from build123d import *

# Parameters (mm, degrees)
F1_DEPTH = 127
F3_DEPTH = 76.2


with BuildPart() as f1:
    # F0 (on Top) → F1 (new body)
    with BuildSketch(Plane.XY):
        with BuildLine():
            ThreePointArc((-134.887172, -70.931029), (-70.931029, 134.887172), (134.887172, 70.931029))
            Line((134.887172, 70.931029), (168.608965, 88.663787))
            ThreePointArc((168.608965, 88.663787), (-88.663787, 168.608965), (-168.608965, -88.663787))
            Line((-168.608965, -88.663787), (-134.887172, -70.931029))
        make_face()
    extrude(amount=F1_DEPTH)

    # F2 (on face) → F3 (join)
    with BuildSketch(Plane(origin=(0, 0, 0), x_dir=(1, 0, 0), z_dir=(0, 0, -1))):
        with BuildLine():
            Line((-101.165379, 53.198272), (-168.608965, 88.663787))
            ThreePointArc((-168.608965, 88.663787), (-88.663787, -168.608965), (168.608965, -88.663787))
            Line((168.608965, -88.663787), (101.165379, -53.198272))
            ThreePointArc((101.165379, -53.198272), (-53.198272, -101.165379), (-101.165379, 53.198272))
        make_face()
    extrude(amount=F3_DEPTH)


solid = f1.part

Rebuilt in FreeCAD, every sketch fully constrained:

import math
import FreeCAD as App
import Part
import Sketcher
Q = App.Units.Quantity

doc = App.newDocument("Part")
body = doc.addObject("PartDesign::Body", "Body")

sketch1 = doc.addObject("Sketcher::SketchObject", "Sketch")
body.addObject(sketch1)
sketch1.AttachmentSupport = (doc.XY_Plane, [""])
sketch1.MapMode = "FlatFace"
sketch1.addGeometry(Part.ArcOfCircle(Part.Circle(App.Vector(0, 0, 0), App.Vector(0, 0, 1), 152), math.radians(28), math.radians(208)), False)
sketch1.addGeometry(Part.LineSegment(App.Vector(135, 71, 0), App.Vector(169, 89, 0)), False)
sketch1.addGeometry(Part.ArcOfCircle(Part.Circle(App.Vector(0, 0, 0), App.Vector(0, 0, 1), 191), math.radians(28), math.radians(208)), False)
sketch1.addGeometry(Part.LineSegment(App.Vector(-169, -89, 0), App.Vector(-135, -71, 0)), False)
sketch1.addConstraint(Sketcher.Constraint("Coincident", 0, 1, 1, 1))
sketch1.addConstraint(Sketcher.Constraint("Coincident", 1, 2, 2, 1))
sketch1.addConstraint(Sketcher.Constraint("Coincident", 2, 2, 3, 1))
sketch1.addConstraint(Sketcher.Constraint("Coincident", 3, 2, 0, 2))
sketch1.addConstraint(Sketcher.Constraint("Coincident", 0, 3, -1, 1))
sketch1.addConstraint(Sketcher.Constraint("Coincident", 2, 3, -1, 1))
sketch1.addConstraint(Sketcher.Constraint("Parallel", 1, 3))
sketch1.addConstraint(Sketcher.Constraint("Radius", 0, Q("6 in")))
sketch1.addConstraint(Sketcher.Constraint("Radius", 2, Q("7.5 in")))
sketch1.addConstraint(Sketcher.Constraint("DistanceX", -1, 1, 0, 1, Q("134.887172 mm")))
sketch1.addConstraint(Sketcher.Constraint("DistanceX", 3, 2, -1, 1, Q("134.887172 mm")))
sketch1.addConstraint(Sketcher.Constraint("DistanceY", 0, 1, 1, 2, Q("17.732758 mm")))
pad1 = doc.addObject("PartDesign::Pad", "Pad")
body.addObject(pad1)
pad1.Profile = sketch1
pad1.Length = Q("5 in")

sketch2 = doc.addObject("Sketcher::SketchObject", "Sketch001")
body.addObject(sketch2)
sketch2.AttachmentSupport = (doc.XY_Plane, [""])
sketch2.MapMode = "FlatFace"
sketch2.addGeometry(Part.LineSegment(App.Vector(-101, -53, 0), App.Vector(-169, -89, 0)), False)
sketch2.addGeometry(Part.ArcOfCircle(Part.Circle(App.Vector(0, 0, 0), App.Vector(0, 0, 1), 191), math.radians(28), math.radians(208)), False)
sketch2.addGeometry(Part.LineSegment(App.Vector(169, 89, 0), App.Vector(101, 53, 0)), False)
sketch2.addGeometry(Part.ArcOfCircle(Part.Circle(App.Vector(0, 0, 0), App.Vector(0, 0, 1), 114), math.radians(28), math.radians(208)), False)
sketch2.addConstraint(Sketcher.Constraint("Coincident", 0, 2, 1, 2))
sketch2.addConstraint(Sketcher.Constraint("Coincident", 1, 1, 2, 1))
sketch2.addConstraint(Sketcher.Constraint("Coincident", 2, 2, 3, 1))
sketch2.addConstraint(Sketcher.Constraint("Coincident", 3, 2, 0, 1))
sketch2.addConstraint(Sketcher.Constraint("Coincident", 1, 3, -1, 1))
sketch2.addConstraint(Sketcher.Constraint("Coincident", 3, 3, -1, 1))
sketch2.addConstraint(Sketcher.Constraint("Parallel", 0, 2))
sketch2.addConstraint(Sketcher.Constraint("Radius", 1, Q("7.5 in")))
sketch2.addConstraint(Sketcher.Constraint("Radius", 3, Q("4.5 in")))
sketch2.addConstraint(Sketcher.Constraint("DistanceX", -1, 1, 2, 2, Q("101.165379 mm")))
sketch2.addConstraint(Sketcher.Constraint("DistanceX", 3, 2, -1, 1, Q("101.165379 mm")))
sketch2.addConstraint(Sketcher.Constraint("DistanceX", 0, 2, 1, 1, Q("337.21793 mm")))
pad2 = doc.addObject("PartDesign::Pad", "Pad001")
body.addObject(pad2)
pad2.Profile = sketch2
pad2.Length = Q("3 in")
pad2.Reversed = True

doc.recompute()
